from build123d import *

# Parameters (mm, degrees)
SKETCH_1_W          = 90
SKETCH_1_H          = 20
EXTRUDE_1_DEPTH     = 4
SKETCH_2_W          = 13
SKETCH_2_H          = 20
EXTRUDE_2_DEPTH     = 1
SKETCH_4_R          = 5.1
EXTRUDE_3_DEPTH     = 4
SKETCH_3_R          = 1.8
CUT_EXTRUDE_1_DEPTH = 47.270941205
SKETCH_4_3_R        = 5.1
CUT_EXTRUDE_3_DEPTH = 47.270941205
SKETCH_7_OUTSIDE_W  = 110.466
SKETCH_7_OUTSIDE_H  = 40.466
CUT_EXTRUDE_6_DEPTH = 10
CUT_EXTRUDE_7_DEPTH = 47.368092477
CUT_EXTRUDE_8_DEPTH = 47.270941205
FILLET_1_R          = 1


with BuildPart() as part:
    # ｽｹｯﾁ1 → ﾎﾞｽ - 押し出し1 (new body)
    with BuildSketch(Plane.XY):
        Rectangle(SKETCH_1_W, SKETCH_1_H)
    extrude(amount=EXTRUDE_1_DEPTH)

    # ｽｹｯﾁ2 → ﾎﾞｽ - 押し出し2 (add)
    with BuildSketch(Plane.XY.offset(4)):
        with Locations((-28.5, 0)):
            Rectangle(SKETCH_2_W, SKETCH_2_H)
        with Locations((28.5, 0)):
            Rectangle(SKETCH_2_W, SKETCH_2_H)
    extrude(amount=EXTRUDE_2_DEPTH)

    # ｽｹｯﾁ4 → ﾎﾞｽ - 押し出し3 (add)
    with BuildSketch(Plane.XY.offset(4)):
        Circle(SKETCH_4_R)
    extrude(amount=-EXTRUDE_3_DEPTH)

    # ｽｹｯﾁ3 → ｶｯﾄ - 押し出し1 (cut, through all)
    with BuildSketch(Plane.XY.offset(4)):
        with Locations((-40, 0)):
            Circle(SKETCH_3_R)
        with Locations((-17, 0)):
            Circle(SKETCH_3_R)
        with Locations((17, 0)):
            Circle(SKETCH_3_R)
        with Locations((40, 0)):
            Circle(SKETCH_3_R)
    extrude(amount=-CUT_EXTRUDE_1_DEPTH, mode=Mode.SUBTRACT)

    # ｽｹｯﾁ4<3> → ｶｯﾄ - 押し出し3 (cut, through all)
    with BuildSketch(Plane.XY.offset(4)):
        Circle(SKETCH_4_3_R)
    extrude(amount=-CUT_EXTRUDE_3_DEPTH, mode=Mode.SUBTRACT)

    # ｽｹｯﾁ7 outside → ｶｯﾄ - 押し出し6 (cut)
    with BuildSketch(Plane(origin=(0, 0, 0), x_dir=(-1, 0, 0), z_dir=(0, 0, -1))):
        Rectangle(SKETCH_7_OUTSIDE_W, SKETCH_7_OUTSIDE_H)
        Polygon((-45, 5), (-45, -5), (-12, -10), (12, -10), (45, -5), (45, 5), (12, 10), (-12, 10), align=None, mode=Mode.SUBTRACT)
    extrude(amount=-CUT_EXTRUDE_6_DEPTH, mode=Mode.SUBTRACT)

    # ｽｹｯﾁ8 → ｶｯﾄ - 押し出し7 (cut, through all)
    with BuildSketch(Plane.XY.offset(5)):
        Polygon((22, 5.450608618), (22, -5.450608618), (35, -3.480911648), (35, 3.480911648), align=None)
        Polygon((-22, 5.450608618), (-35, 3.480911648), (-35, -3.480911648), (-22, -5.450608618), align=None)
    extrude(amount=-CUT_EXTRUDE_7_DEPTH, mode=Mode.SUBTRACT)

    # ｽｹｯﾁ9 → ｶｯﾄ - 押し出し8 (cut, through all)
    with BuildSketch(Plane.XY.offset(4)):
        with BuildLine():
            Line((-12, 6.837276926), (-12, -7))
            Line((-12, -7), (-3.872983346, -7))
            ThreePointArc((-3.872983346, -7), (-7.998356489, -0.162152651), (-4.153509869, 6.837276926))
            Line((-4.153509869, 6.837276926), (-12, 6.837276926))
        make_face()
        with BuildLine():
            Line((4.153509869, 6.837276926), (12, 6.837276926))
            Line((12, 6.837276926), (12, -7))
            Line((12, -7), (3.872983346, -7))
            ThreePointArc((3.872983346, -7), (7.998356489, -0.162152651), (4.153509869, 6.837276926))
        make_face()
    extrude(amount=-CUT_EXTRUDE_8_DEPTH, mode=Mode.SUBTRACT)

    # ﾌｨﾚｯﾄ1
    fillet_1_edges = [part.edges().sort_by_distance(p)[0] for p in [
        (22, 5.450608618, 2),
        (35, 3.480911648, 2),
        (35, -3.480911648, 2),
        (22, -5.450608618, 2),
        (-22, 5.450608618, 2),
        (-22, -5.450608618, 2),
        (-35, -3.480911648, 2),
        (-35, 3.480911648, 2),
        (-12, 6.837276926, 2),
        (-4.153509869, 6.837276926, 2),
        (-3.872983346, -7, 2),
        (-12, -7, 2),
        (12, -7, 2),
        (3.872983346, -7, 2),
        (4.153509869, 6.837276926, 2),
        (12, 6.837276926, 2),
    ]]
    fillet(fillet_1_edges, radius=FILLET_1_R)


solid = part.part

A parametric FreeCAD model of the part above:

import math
import FreeCAD as App
import Part
import Sketcher
Q = App.Units.Quantity


def edges_at(feature, points):
    """Names of the edges that pass closest to the given points."""
    edges = feature.Shape.Edges
    near = lambda p: min(range(len(edges)), key=lambda i: edges[i].distToShape(Part.Vertex(*p))[0])
    return sorted({f"Edge{near(p) + 1}" for p in points})

doc = App.newDocument("Part")
body = doc.addObject("PartDesign::Body", "Body")

sketch1 = doc.addObject("Sketcher::SketchObject", "Sketch")
body.addObject(sketch1)
sketch1.AttachmentSupport = (doc.XY_Plane, [""])
sketch1.MapMode = "FlatFace"
sketch1.addGeometry(Part.LineSegment(App.Vector(-45, 10, 0), App.Vector(-45, -10, 0)), False)
sketch1.addGeometry(Part.LineSegment(App.Vector(-45, -10, 0), App.Vector(45, -10, 0)), False)
sketch1.addGeometry(Part.LineSegment(App.Vector(45, -10, 0), App.Vector(45, 10, 0)), False)
sketch1.addGeometry(Part.LineSegment(App.Vector(45, 10, 0), App.Vector(-45, 10, 0)), False)
sketch1.addConstraint(Sketcher.Constraint("Coincident", 0, 2, 1, 1))
sketch1.addConstraint(Sketcher.Constraint("Coincident", 1, 2, 2, 1))
sketch1.addConstraint(Sketcher.Constraint("Coincident", 2, 2, 3, 1))
sketch1.addConstraint(Sketcher.Constraint("Coincident", 3, 2, 0, 1))
sketch1.addConstraint(Sketcher.Constraint("Vertical", 0))
sketch1.addConstraint(Sketcher.Constraint("Horizontal", 1))
sketch1.addConstraint(Sketcher.Constraint("Vertical", 2))
sketch1.addConstraint(Sketcher.Constraint("Horizontal", 3))
sketch1.addConstraint(Sketcher.Constraint("Symmetric", 0, 2, 2, 2, -1, 1))
sketch1.addConstraint(Sketcher.Constraint("DistanceX", 1, 1, 1, 2, Q("90 mm")))
sketch1.addConstraint(Sketcher.Constraint("DistanceY", 0, 2, 0, 1, Q("20 mm")))
pad1 = doc.addObject("PartDesign::Pad", "Pad")
body.addObject(pad1)
pad1.Profile = sketch1
pad1.Length = 4

sketch2 = doc.addObject("Sketcher::SketchObject", "Sketch001")
body.addObject(sketch2)
sketch2.AttachmentSupport = (doc.XY_Plane, [""])
sketch2.MapMode = "FlatFace"
sketch2.AttachmentOffset = App.Placement(App.Vector(0, 0, 4), App.Rotation())
sketch2.addGeometry(Part.LineSegment(App.Vector(-35, 10, 0), App.Vector(-35, -10, 0)), False)
sketch2.addGeometry(Part.LineSegment(App.Vector(-35, -10, 0), App.Vector(-22, -10, 0)), False)
sketch2.addGeometry(Part.LineSegment(App.Vector(-22, -10, 0), App.Vector(-22, 10, 0)), False)
sketch2.addGeometry(Part.LineSegment(App.Vector(-22, 10, 0), App.Vector(-35, 10, 0)), False)
sketch2.addGeometry(Part.LineSegment(App.Vector(22, 10, 0), App.Vector(22, -10, 0)), False)
sketch2.addGeometry(Part.LineSegment(App.Vector(22, -10, 0), App.Vector(35, -10, 0)), False)
sketch2.addGeometry(Part.LineSegment(App.Vector(35, -10, 0), App.Vector(35, 10, 0)), False)
sketch2.addGeometry(Part.LineSegment(App.Vector(35, 10, 0), App.Vector(22, 10, 0)), False)
sketch2.addConstraint(Sketcher.Constraint("Coincident", 0, 2, 1, 1))
sketch2.addConstraint(Sketcher.Constraint("Coincident", 1, 2, 2, 1))
sketch2.addConstraint(Sketcher.Constraint("Coincident", 2, 2, 3, 1))
sketch2.addConstraint(Sketcher.Constraint("Coincident", 3, 2, 0, 1))
sketch2.addConstraint(Sketcher.Constraint("Coincident", 4, 2, 5, 1))
sketch2.addConstraint(Sketcher.Constraint("Coincident", 5, 2, 6, 1))
sketch2.addConstraint(Sketcher.Constraint("Coincident", 6, 2, 7, 1))
sketch2.addConstraint(Sketcher.Constraint("Coincident", 7, 2, 4, 1))
sketch2.addConstraint(Sketcher.Constraint("Vertical", 0))
sketch2.addConstraint(Sketcher.Constraint("Horizontal", 1))
sketch2.addConstraint(Sketcher.Constraint("Vertical", 2))
sketch2.addConstraint(Sketcher.Constraint("Horizontal", 3))
sketch2.addConstraint(Sketcher.Constraint("Vertical", 4))
sketch2.addConstraint(Sketcher.Constraint("Horizontal", 5))
sketch2.addConstraint(Sketcher.Constraint("Vertical", 6))
sketch2.addConstraint(Sketcher.Constraint("Horizontal", 7))
sketch2.addConstraint(Sketcher.Constraint("Symmetric", 2, 2, 4, 2, -1, 1))
sketch2.addConstraint(Sketcher.Constraint("Symmetric", 0, 2, 6, 2, -1, 1))
sketch2.addConstraint(Sketcher.Constraint("Horizontal", 1, 2, 4, 2))
sketch2.addConstraint(Sketcher.Constraint("DistanceX", 1, 1, 1, 2, Q("13 mm")))
sketch2.addConstraint(Sketcher.Constraint("DistanceY", 0, 2, 0, 1, Q("20 mm")))
sketch2.addConstraint(Sketcher.Constraint("DistanceX", 0, 2, -1, 1, Q("35 mm")))
pad2 = doc.addObject("PartDesign::Pad", "Pad001")
body.addObject(pad2)
pad2.Profile = sketch2
pad2.Length = 1

sketch3 = doc.addObject("Sketcher::SketchObject", "Sketch002")
body.addObject(sketch3)
sketch3.AttachmentSupport = (doc.XY_Plane, [""])
sketch3.MapMode = "FlatFace"
sketch3.AttachmentOffset = App.Placement(App.Vector(0, 0, 4), App.Rotation())
sketch3.addGeometry(Part.Circle(App.Vector(0, 0, 0), App.Vector(0, 0, 1), 5), False)
sketch3.addConstraint(Sketcher.Constraint("Coincident", 0, 3, -1, 1))
sketch3.addConstraint(Sketcher.Constraint("Diameter", 0, Q("10.2 mm")))
pad3 = doc.addObject("PartDesign::Pad", "Pad002")
body.addObject(pad3)
pad3.Profile = sketch3
pad3.Length = 4
pad3.Reversed = True

sketch4 = doc.addObject("Sketcher::SketchObject", "Sketch003")
body.addObject(sketch4)
sketch4.AttachmentSupport = (doc.XY_Plane, [""])
sketch4.MapMode = "FlatFace"
sketch4.AttachmentOffset = App.Placement(App.Vector(0, 0, 4), App.Rotation())
sketch4.addGeometry(Part.Circle(App.Vector(-40, 0, 0), App.Vector(0, 0, 1), 1.8), False)
sketch4.addGeometry(Part.Circle(App.Vector(-17, 0, 0), App.Vector(0, 0, 1), 1.8), False)
sketch4.addGeometry(Part.Circle(App.Vector(17, 0, 0), App.Vector(0, 0, 1), 1.8), False)
sketch4.addGeometry(Part.Circle(App.Vector(40, 0, 0), App.Vector(0, 0, 1), 1.8), False)
sketch4.addConstraint(Sketcher.Constraint("Equal", 0, 1))
sketch4.addConstraint(Sketcher.Constraint("Equal", 1, 2))
sketch4.addConstraint(Sketcher.Constraint("Equal", 2, 3))
sketch4.addConstraint(Sketcher.Constraint("Symmetric", 1, 3, 2, 3, -1, 1))
sketch4.addConstraint(Sketcher.Constraint("Symmetric", 0, 3, 3, 3, -1, 1))
sketch4.addConstraint(Sketcher.Constraint("PointOnObject", 0, 3, -1))
sketch4.addConstraint(Sketcher.Constraint("PointOnObject", 1, 3, -1))
sketch4.addConstraint(Sketcher.Constraint("Diameter", 0, Q("3.6 mm")))
sketch4.addConstraint(Sketcher.Constraint("DistanceX", 0, 3, -1, 1, Q("40 mm")))
sketch4.addConstraint(Sketcher.Constraint("DistanceX", 1, 3, -1, 1, Q("17 mm")))
pocket1 = doc.addObject("PartDesign::Pocket", "Pocket")
body.addObject(pocket1)
pocket1.Profile = sketch4
pocket1.Type = "ThroughAll"

sketch5 = doc.addObject("Sketcher::SketchObject", "Sketch004")
body.addObject(sketch5)
sketch5.AttachmentSupport = (doc.XY_Plane, [""])
sketch5.MapMode = "FlatFace"
sketch5.AttachmentOffset = App.Placement(App.Vector(0, 0, 4), App.Rotation())
sketch5.addGeometry(Part.Circle(App.Vector(0, 0, 0), App.Vector(0, 0, 1), 5), False)
sketch5.addConstraint(Sketcher.Constraint("Coincident", 0, 3, -1, 1))
sketch5.addConstraint(Sketcher.Constraint("Diameter", 0, Q("10.2 mm")))
pocket2 = doc.addObject("PartDesign::Pocket", "Pocket001")
body.addObject(pocket2)
pocket2.Profile = sketch5
pocket2.Type = "ThroughAll"

sketch6 = doc.addObject("Sketcher::SketchObject", "Sketch005")
body.addObject(sketch6)
sketch6.AttachmentSupport = (doc.XY_Plane, [""])
sketch6.MapMode = "FlatFace"
sketch6.addGeometry(Part.LineSegment(App.Vector(55, 20, 0), App.Vector(55, -20, 0)), False)
sketch6.addGeometry(Part.LineSegment(App.Vector(55, -20, 0), App.Vector(-55, -20, 0)), False)
sketch6.addGeometry(Part.LineSegment(App.Vector(-55, -20, 0), App.Vector(-55, 20, 0)), False)
sketch6.addGeometry(Part.LineSegment(App.Vector(-55, 20, 0), App.Vector(55, 20, 0)), False)
sketch6.addGeometry(Part.LineSegment(App.Vector(45, -5, 0), App.Vector(45, 5, 0)), False)
sketch6.addGeometry(Part.LineSegment(App.Vector(45, 5, 0), App.Vector(12, 10, 0)), False)
sketch6.addGeometry(Part.LineSegment(App.Vector(12, 10, 0), App.Vector(-12, 10, 0)), False)
sketch6.addGeometry(Part.LineSegment(App.Vector(-12, 10, 0), App.Vector(-45, 5, 0)), False)
sketch6.addGeometry(Part.LineSegment(App.Vector(-45, 5, 0), App.Vector(-45, -5, 0)), False)
sketch6.addGeometry(Part.LineSegment(App.Vector(-45, -5, 0), App.Vector(-12, -10, 0)), False)
sketch6.addGeometry(Part.LineSegment(App.Vector(-12, -10, 0), App.Vector(12, -10, 0)), False)
sketch6.addGeometry(Part.LineSegment(App.Vector(12, -10, 0), App.Vector(45, -5, 0)), False)
sketch6.addConstraint(Sketcher.Constraint("Coincident", 0, 2, 1, 1))
sketch6.addConstraint(Sketcher.Constraint("Coincident", 1, 2, 2, 1))
sketch6.addConstraint(Sketcher.Constraint("Coincident", 2, 2, 3, 1))
sketch6.addConstraint(Sketcher.Constraint("Coincident", 3, 2, 0, 1))
sketch6.addConstraint(Sketcher.Constraint("Coincident", 4, 2, 5, 1))
sketch6.addConstraint(Sketcher.Constraint("Coincident", 5, 2, 6, 1))
sketch6.addConstraint(Sketcher.Constraint("Coincident", 6, 2, 7, 1))
sketch6.addConstraint(Sketcher.Constraint("Coincident", 7, 2, 8, 1))
sketch6.addConstraint(Sketcher.Constraint("Coincident", 8, 2, 9, 1))
sketch6.addConstraint(Sketcher.Constraint("Coincident", 9, 2, 10, 1))
sketch6.addConstraint(Sketcher.Constraint("Coincident", 10, 2, 11, 1))
sketch6.addConstraint(Sketcher.Constraint("Coincident", 11, 2, 4, 1))
sketch6.addConstraint(Sketcher.Constraint("Vertical", 0))
sketch6.addConstraint(Sketcher.Constraint("Horizontal", 1))
sketch6.addConstraint(Sketcher.Constraint("Vertical", 2))
sketch6.addConstraint(Sketcher.Constraint("Horizontal", 3))
sketch6.addConstraint(Sketcher.Constraint("Vertical", 4))
sketch6.addConstraint(Sketcher.Constraint("Horizontal", 6))
sketch6.addConstraint(Sketcher.Constraint("Vertical", 8))
sketch6.addConstraint(Sketcher.Constraint("Horizontal", 10))
sketch6.addConstraint(Sketcher.Constraint("Symmetric", 0, 2, 2, 2, -1, 1))
sketch6.addConstraint(Sketcher.Constraint("Symmetric", 4, 2, 8, 2, -1, 1))
sketch6.addConstraint(Sketcher.Constraint("Symmetric", 5, 2, 9, 2, -1, 1))
sketch6.addConstraint(Sketcher.Constraint("Parallel", 7, 11))
sketch6.addConstraint(Sketcher.Constraint("Horizontal", 4, 2, 7, 2))
sketch6.addConstraint(Sketcher.Constraint("Horizontal", 8, 2, 11, 2))
sketch6.addConstraint(Sketcher.Constraint("Vertical", 6, 2, 9, 2))
sketch6.addConstraint(Sketcher.Constraint("DistanceX", 6, 2, 6, 1, Q("24 mm")))
sketch6.addConstraint(Sketcher.Constraint("DistanceY", 4, 1, 4, 2, Q("10 mm")))
sketch6.addConstraint(Sketcher.Constraint("DistanceX", -1, 1, 4, 2, Q("45 mm")))
sketch6.addConstraint(Sketcher.Constraint("DistanceY", -1, 1, 5, 2, Q("10 mm")))
sketch6.addConstraint(Sketcher.Constraint("DistanceX", 1, 2, 1, 1, Q("110.466 mm")))
sketch6.addConstraint(Sketcher.Constraint("DistanceY", 0, 2, 0, 1, Q("40.466 mm")))
pocket3 = doc.addObject("PartDesign::Pocket", "Pocket002")
body.addObject(pocket3)
pocket3.Profile = sketch6
pocket3.Length = 10
pocket3.Reversed = True

sketch7 = doc.addObject("Sketcher::SketchObject", "Sketch006")
body.addObject(sketch7)
sketch7.AttachmentSupport = (doc.XY_Plane, [""])
sketch7.MapMode = "FlatFace"
sketch7.AttachmentOffset = App.Placement(App.Vector(0, 0, 5), App.Rotation())
sketch7.addGeometry(Part.LineSegment(App.Vector(22, 5, 0), App.Vector(22, -5, 0)), False)
sketch7.addGeometry(Part.LineSegment(App.Vector(22, -5, 0), App.Vector(35, -3, 0)), False)
sketch7.addGeometry(Part.LineSegment(App.Vector(35, -3, 0), App.Vector(35, 3, 0)), False)
sketch7.addGeometry(Part.LineSegment(App.Vector(35, 3, 0), App.Vector(22, 5, 0)), False)
sketch7.addGeometry(Part.LineSegment(App.Vector(-22, 5, 0), App.Vector(-35, 3, 0)), False)
sketch7.addGeometry(Part.LineSegment(App.Vector(-35, 3, 0), App.Vector(-35, -3, 0)), False)
sketch7.addGeometry(Part.LineSegment(App.Vector(-35, -3, 0), App.Vector(-22, -5, 0)), False)
sketch7.addGeometry(Part.LineSegment(App.Vector(-22, -5, 0), App.Vector(-22, 5, 0)), False)
sketch7.addConstraint(Sketcher.Constraint("Coincident", 0, 2, 1, 1))
sketch7.addConstraint(Sketcher.Constraint("Coincident", 1, 2, 2, 1))
sketch7.addConstraint(Sketcher.Constraint("Coincident", 2, 2, 3, 1))
sketch7.addConstraint(Sketcher.Constraint("Coincident", 3, 2, 0, 1))
sketch7.addConstraint(Sketcher.Constraint("Coincident", 4, 2, 5, 1))
sketch7.addConstraint(Sketcher.Constraint("Coincident", 5, 2, 6, 1))
sketch7.addConstraint(Sketcher.Constraint("Coincident", 6, 2, 7, 1))
sketch7.addConstraint(Sketcher.Constraint("Coincident", 7, 2, 4, 1))
sketch7.addConstraint(Sketcher.Constraint("Vertical", 0))
sketch7.addConstraint(Sketcher.Constraint("Vertical", 2))
sketch7.addConstraint(Sketcher.Constraint("Vertical", 5))
sketch7.addConstraint(Sketcher.Constraint("Vertical", 7))
sketch7.addConstraint(Sketcher.Constraint("Symmetric", 1, 2, 4, 2, -1, 1))
sketch7.addConstraint(Sketcher.Constraint("Symmetric", 3, 2, 6, 2, -1, 1))
sketch7.addConstraint(Sketcher.Constraint("Parallel", 1, 4))
sketch7.addConstraint(Sketcher.Constraint("Parallel", 3, 6))
sketch7.addConstraint(Sketcher.Constraint("Horizontal", 2, 2, 4, 2))
sketch7.addConstraint(Sketcher.Constraint("Horizontal", 0, 2, 6, 2))
sketch7.addConstraint(Sketcher.Constraint("DistanceX", -1, 1, 0, 2, Q("22 mm")))
sketch7.addConstraint(Sketcher.Constraint("DistanceX", -1, 1, 1, 2, Q("35 mm")))
sketch7.addConstraint(Sketcher.Constraint("DistanceY", 0, 2, 0, 1, Q("10.901217 mm")))
sketch7.addConstraint(Sketcher.Constraint("DistanceY", 2, 1, 2, 2, Q("6.961823 mm")))
pocket4 = doc.addObject("PartDesign::Pocket", "Pocket003")
body.addObject(pocket4)
pocket4.Profile = sketch7
pocket4.Type = "ThroughAll"

sketch8 = doc.addObject("Sketcher::SketchObject", "Sketch007")
body.addObject(sketch8)
sketch8.AttachmentSupport = (doc.XY_Plane, [""])
sketch8.MapMode = "FlatFace"
sketch8.AttachmentOffset = App.Placement(App.Vector(0, 0, 4), App.Rotation())
sketch8.addGeometry(Part.LineSegment(App.Vector(-12, 7, 0), App.Vector(-12, -7, 0)), False)
sketch8.addGeometry(Part.LineSegment(App.Vector(-12, -7, 0), App.Vector(-4, -7, 0)), False)
sketch8.addGeometry(Part.ArcOfCircle(Part.Circle(App.Vector(0, 0, 0), App.Vector(0, 0, 1), 8), math.radians(121), math.radians(241)), False)
sketch8.addGeometry(Part.LineSegment(App.Vector(-4, 7, 0), App.Vector(-12, 7, 0)), False)
sketch8.addGeometry(Part.LineSegment(App.Vector(12, 7, 0), App.Vector(4, 7, 0)), False)
sketch8.addGeometry(Part.ArcOfCircle(Part.Circle(App.Vector(0, 0, 0), App.Vector(0, 0, 1), 8), math.radians(-61), math.radians(59)), False)
sketch8.addGeometry(Part.LineSegment(App.Vector(4, -7, 0), App.Vector(12, -7, 0)), False)
sketch8.addGeometry(Part.LineSegment(App.Vector(12, -7, 0), App.Vector(12, 7, 0)), False)
sketch8.addConstraint(Sketcher.Constraint("Coincident", 0, 2, 1, 1))
sketch8.addConstraint(Sketcher.Constraint("Coincident", 1, 2, 2, 2))
sketch8.addConstraint(Sketcher.Constraint("Coincident", 2, 1, 3, 1))
sketch8.addConstraint(Sketcher.Constraint("Coincident", 3, 2, 0, 1))
sketch8.addConstraint(Sketcher.Constraint("Coincident", 4, 2, 5, 2))
sketch8.addConstraint(Sketcher.Constraint("Coincident", 5, 1, 6, 1))
sketch8.addConstraint(Sketcher.Constraint("Coincident", 6, 2, 7, 1))
sketch8.addConstraint(Sketcher.Constraint("Coincident", 7, 2, 4, 1))
sketch8.addConstraint(Sketcher.Constraint("Vertical", 0))
sketch8.addConstraint(Sketcher.Constraint("Horizontal", 1))
sketch8.addConstraint(Sketcher.Constraint("Horizontal", 3))
sketch8.addConstraint(Sketcher.Constraint("Horizontal", 4))
sketch8.addConstraint(Sketcher.Constraint("Horizontal", 6))
sketch8.addConstraint(Sketcher.Constraint("Vertical", 7))
sketch8.addConstraint(Sketcher.Constraint("Coincident", 2, 3, -1, 1))
sketch8.addConstraint(Sketcher.Constraint("Coincident", 5, 3, -1, 1))
sketch8.addConstraint(Sketcher.Constraint("Equal", 2, 5))
sketch8.addConstraint(Sketcher.Constraint("Symmetric", 0, 2, 6, 2, -2))
sketch8.addConstraint(Sketcher.Constraint("Horizontal", 3, 2, 4, 2))
sketch8.addConstraint(Sketcher.Constraint("Radius", 2, Q("8 mm")))
sketch8.addConstraint(Sketcher.Constraint("DistanceX", 0, 2, -1, 1, Q("12 mm")))
sketch8.addConstraint(Sketcher.Constraint("DistanceY", 0, 2, -1, 1, Q("7 mm")))
sketch8.addConstraint(Sketcher.Constraint("DistanceX", 3, 2, 3, 1, Q("7.84649 mm")))
pocket5 = doc.addObject("PartDesign::Pocket", "Pocket004")
body.addObject(pocket5)
pocket5.Profile = sketch8
pocket5.Type = "ThroughAll"
doc.recompute()

fillet = doc.addObject("PartDesign::Fillet", "Fillet")
body.addObject(fillet)
fillet.Base = (pocket5, edges_at(pocket5, [
    (22, 5.451, 2),
    (35, 3.481, 2),
    (35, -3.481, 2),
    (22, -5.451, 2),
    (-22, 5.451, 2),
    (-22, -5.451, 2),
    (-35, -3.481, 2),
    (-35, 3.481, 2),
    (-12, 6.837, 2),
    (-4.154, 6.837, 2),
    (-3.873, -7, 2),
    (-12, -7, 2),
    (12, -7, 2),
    (3.873, -7, 2),
    (4.154, 6.837, 2),
    (12, 6.837, 2),
]))
fillet.Radius = 1

doc.recompute()
